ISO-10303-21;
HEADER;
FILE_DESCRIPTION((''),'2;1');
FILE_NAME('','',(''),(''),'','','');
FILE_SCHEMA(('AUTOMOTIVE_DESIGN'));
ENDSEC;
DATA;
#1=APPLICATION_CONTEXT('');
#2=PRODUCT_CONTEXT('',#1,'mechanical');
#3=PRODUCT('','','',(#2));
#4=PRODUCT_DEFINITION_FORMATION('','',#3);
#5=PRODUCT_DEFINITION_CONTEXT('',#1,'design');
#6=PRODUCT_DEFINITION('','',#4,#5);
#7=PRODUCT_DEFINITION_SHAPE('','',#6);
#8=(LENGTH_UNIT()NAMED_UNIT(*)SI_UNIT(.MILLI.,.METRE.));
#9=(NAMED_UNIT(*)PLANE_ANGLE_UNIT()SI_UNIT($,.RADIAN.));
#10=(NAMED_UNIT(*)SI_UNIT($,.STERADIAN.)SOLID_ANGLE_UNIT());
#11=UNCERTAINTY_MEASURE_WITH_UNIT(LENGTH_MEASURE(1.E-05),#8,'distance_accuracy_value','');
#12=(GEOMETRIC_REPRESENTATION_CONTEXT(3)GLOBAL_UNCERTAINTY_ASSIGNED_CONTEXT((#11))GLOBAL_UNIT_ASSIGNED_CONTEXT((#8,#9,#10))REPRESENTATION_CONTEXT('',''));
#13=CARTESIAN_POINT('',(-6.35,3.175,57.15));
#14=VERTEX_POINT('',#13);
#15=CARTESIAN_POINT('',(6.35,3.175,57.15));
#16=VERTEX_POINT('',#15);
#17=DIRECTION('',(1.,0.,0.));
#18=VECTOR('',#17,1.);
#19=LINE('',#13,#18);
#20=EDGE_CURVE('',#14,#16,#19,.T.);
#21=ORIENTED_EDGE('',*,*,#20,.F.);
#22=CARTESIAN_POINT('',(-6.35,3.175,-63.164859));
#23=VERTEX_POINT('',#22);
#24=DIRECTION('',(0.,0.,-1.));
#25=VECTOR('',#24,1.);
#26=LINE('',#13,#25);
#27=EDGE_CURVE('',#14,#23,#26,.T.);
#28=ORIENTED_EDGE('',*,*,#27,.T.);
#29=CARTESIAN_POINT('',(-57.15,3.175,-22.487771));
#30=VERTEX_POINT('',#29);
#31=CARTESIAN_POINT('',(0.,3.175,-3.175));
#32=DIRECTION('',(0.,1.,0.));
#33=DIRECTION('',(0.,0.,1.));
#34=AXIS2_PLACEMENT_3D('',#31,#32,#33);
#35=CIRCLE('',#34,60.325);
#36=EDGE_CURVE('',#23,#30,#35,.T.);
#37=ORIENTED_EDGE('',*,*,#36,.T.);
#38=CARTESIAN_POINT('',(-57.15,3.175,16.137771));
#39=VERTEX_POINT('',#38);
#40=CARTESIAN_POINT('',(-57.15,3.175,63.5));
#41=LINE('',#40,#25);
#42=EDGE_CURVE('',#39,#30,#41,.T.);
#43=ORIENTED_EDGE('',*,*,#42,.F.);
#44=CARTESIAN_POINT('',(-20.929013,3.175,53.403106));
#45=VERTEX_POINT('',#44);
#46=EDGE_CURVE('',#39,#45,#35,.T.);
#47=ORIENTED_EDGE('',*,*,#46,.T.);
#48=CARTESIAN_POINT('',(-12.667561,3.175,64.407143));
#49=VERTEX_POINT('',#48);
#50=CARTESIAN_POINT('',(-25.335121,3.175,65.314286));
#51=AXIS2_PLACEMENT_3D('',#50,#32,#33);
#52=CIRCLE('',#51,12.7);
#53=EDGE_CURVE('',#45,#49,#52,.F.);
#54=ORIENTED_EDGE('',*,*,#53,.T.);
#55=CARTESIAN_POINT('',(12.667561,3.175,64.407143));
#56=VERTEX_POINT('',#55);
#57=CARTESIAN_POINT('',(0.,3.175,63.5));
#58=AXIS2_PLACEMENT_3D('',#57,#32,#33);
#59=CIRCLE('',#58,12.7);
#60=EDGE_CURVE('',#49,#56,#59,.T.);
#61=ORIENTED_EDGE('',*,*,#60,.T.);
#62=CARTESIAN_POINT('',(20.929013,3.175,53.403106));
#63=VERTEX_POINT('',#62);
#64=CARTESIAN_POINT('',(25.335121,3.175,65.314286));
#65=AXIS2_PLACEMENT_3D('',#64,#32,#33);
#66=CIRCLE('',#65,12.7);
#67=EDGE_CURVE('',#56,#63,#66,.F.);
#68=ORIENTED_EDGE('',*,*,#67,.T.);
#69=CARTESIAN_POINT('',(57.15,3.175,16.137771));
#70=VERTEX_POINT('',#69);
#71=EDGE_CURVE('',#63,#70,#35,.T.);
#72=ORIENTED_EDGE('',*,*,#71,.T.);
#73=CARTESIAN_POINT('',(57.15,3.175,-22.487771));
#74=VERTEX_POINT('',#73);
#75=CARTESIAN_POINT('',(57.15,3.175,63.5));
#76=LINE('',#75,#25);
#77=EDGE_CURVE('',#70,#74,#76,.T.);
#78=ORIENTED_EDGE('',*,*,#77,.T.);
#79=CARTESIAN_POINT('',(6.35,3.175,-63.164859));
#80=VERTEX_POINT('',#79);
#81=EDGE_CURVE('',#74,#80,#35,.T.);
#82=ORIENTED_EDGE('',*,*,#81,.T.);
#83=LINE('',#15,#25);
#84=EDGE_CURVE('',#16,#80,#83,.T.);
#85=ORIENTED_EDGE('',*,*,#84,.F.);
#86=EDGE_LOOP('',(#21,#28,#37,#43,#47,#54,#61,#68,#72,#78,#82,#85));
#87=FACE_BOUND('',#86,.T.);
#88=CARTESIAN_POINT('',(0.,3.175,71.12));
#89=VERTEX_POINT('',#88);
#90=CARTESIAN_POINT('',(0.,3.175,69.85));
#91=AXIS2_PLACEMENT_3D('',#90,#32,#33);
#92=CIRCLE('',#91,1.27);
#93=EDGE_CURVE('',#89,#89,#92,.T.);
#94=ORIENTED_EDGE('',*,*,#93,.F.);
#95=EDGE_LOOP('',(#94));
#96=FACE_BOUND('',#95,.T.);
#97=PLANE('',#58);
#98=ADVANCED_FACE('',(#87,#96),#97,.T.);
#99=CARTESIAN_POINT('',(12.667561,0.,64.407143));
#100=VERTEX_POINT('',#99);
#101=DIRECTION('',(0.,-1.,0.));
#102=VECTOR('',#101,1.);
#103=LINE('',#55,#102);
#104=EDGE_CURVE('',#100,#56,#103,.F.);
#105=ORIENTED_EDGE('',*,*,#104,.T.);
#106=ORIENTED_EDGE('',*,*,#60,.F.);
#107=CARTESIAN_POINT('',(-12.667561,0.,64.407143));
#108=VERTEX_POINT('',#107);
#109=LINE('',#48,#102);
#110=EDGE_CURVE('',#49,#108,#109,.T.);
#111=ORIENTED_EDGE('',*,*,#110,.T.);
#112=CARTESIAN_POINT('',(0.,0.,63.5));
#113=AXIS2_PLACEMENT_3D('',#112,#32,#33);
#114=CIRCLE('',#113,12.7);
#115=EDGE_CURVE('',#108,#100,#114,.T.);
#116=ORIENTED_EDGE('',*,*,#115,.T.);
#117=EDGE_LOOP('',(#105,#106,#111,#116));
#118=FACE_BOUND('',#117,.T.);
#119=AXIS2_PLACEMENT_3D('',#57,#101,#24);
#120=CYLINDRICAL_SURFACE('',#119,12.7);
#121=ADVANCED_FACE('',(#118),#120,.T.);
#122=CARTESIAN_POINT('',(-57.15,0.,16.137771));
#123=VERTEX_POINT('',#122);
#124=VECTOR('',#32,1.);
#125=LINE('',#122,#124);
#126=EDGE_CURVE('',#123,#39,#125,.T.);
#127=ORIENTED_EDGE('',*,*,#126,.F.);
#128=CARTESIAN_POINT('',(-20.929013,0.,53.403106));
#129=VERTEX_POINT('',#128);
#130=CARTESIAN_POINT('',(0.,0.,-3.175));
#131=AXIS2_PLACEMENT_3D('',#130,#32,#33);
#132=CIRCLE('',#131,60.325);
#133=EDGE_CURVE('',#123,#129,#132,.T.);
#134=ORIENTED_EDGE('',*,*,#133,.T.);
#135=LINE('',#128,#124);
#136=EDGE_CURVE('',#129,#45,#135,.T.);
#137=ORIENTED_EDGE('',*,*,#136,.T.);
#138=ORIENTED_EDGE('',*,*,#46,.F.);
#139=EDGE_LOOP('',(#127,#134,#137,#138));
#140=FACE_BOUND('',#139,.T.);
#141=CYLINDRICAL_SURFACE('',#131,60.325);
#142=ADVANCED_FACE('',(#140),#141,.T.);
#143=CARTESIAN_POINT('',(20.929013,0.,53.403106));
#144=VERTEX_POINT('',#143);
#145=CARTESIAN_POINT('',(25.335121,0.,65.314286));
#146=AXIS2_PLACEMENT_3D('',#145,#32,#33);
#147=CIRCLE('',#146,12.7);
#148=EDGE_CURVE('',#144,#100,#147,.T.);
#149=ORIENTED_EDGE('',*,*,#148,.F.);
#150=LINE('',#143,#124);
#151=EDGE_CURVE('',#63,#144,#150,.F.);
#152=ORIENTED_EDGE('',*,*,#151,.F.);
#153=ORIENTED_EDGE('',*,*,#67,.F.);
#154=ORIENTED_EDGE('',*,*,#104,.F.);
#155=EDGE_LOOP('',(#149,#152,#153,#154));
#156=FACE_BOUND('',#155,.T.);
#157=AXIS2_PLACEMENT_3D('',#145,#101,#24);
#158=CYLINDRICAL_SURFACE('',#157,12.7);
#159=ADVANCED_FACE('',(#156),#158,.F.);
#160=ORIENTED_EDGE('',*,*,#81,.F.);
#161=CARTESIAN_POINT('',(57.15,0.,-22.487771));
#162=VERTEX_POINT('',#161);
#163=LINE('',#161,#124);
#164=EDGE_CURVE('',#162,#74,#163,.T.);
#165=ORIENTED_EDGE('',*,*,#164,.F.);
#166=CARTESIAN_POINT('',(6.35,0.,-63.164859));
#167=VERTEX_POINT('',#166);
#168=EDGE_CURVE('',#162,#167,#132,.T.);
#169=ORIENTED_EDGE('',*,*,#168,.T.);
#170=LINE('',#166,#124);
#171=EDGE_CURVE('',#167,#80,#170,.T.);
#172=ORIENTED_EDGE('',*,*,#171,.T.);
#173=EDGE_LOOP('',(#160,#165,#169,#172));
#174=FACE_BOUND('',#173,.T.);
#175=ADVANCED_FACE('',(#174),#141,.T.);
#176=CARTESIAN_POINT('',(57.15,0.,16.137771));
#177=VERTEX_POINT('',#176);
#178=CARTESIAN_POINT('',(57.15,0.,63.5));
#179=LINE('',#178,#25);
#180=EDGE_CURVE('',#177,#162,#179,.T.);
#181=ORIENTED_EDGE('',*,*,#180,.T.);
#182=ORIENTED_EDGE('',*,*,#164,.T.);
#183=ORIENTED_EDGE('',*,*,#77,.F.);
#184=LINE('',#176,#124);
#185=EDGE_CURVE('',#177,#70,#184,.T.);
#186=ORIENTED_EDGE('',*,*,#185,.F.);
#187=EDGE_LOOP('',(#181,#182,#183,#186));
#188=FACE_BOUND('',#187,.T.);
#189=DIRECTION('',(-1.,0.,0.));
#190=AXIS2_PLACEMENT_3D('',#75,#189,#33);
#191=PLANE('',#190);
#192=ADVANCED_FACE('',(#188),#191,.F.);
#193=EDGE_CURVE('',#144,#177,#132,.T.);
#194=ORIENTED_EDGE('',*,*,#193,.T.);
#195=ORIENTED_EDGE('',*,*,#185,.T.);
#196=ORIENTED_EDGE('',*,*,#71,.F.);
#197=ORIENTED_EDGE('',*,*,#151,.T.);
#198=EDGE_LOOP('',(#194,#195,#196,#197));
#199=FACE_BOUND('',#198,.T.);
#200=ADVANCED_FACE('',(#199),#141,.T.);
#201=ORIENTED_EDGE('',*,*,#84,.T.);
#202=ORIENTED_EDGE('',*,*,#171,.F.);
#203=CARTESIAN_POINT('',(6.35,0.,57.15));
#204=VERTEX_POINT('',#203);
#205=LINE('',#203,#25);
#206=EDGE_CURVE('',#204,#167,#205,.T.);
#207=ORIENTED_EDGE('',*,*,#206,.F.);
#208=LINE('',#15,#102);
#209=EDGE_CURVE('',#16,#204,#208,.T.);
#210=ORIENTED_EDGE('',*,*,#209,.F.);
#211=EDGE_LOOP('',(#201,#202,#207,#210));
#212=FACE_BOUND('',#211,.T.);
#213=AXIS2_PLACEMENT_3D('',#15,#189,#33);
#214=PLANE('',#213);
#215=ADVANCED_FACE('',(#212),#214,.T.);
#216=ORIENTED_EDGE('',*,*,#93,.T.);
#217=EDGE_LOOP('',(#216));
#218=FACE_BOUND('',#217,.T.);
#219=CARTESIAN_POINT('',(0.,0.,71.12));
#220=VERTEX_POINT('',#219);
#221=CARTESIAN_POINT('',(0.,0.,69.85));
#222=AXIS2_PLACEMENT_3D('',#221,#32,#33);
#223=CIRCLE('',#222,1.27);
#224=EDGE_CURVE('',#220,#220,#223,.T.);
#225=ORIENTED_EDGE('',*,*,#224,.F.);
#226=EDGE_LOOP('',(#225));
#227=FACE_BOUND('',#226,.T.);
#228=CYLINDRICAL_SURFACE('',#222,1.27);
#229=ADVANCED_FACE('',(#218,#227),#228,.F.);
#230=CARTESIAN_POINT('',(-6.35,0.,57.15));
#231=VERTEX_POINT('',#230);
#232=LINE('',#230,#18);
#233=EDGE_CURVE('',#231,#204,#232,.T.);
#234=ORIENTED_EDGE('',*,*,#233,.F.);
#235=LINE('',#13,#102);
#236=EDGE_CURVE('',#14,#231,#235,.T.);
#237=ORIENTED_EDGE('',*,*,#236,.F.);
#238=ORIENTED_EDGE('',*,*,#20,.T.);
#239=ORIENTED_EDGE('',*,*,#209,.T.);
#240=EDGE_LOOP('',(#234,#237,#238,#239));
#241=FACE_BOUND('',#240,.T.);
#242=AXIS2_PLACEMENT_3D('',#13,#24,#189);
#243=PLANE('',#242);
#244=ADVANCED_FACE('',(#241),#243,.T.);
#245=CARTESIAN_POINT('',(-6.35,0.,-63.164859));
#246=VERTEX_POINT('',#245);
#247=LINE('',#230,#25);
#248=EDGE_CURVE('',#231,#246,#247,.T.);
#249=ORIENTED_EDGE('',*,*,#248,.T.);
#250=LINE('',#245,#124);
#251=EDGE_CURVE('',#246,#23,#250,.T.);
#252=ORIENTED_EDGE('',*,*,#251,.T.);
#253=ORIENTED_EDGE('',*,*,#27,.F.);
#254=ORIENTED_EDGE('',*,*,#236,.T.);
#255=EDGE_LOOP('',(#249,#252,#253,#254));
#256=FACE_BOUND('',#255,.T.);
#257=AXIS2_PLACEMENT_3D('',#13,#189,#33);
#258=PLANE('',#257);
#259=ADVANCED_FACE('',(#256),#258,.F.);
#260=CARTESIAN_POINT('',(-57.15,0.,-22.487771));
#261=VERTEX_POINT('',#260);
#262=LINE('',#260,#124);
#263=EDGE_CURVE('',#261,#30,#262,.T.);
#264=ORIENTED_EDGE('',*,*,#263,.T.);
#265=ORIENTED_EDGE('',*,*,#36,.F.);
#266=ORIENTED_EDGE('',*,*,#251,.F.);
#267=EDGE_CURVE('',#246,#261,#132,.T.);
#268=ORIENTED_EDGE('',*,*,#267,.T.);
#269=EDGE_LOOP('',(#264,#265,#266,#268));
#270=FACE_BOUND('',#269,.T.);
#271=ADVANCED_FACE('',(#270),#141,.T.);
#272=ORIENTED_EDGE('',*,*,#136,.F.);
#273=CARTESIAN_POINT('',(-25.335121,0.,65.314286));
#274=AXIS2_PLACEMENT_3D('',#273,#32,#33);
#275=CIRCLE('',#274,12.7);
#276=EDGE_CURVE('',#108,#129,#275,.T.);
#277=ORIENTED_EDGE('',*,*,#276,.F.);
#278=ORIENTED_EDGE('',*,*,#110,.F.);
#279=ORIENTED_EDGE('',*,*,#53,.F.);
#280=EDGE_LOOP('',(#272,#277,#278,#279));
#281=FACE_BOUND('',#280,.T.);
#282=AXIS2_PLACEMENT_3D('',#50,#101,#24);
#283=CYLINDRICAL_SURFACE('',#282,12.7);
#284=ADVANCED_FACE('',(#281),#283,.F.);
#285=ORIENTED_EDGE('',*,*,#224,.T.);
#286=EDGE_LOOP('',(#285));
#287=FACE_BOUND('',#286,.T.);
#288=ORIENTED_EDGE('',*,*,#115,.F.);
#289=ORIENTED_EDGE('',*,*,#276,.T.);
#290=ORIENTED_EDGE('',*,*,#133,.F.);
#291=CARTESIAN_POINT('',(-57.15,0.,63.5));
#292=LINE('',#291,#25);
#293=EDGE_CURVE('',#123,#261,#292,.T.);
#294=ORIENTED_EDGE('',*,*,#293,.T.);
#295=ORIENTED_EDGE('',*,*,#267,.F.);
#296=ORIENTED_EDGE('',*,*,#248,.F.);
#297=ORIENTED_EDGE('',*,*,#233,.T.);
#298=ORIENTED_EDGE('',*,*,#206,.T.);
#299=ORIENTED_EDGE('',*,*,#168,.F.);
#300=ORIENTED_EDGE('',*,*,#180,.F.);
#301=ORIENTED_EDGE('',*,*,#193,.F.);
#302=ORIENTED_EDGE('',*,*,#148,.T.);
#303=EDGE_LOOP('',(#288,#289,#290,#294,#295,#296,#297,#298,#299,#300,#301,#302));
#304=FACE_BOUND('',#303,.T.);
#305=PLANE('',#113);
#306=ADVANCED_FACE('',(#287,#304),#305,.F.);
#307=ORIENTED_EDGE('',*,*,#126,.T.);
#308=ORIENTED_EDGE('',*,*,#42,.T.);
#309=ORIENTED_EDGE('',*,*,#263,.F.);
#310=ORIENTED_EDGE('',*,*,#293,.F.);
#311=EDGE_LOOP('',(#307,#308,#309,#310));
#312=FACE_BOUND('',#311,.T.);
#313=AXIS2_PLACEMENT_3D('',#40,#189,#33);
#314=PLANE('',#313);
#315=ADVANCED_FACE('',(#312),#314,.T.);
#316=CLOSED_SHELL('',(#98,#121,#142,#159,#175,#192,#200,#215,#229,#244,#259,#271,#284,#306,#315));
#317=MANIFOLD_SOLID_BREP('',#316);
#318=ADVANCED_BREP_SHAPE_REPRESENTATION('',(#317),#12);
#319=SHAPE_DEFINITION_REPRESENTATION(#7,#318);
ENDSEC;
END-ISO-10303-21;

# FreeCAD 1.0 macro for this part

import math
import FreeCAD as App
import Part
import Sketcher
from FreeCAD import Vector
Q = App.Units.Quantity


def edges_at(feature, points):
    """Names of the edges that pass closest to the given points."""
    edges = feature.Shape.Edges
    near = lambda p: min(range(len(edges)), key=lambda i: edges[i].distToShape(Part.Vertex(*p))[0])
    return sorted({f"Edge{near(p) + 1}" for p in points})

doc = App.newDocument("Part")
body = doc.addObject("PartDesign::Body", "Body")

# Sketch on XZ plane
sketch1 = body.newObject("Sketcher::SketchObject", "Sketch")
sketch1.AttachmentSupport = (doc.getObject("XZ_Plane"), [""])
sketch1.MapMode = "FlatFace"
sketch1.addGeometry(Part.LineSegment(Vector(57, -64, 0), Vector(6, -64, 0)), False)
sketch1.addGeometry(Part.LineSegment(Vector(6, -64, 0), Vector(6, 57, 0)), False)
sketch1.addGeometry(Part.LineSegment(Vector(6, 57, 0), Vector(-6, 57, 0)), False)
sketch1.addGeometry(Part.LineSegment(Vector(-6, 57, 0), Vector(-6, -64, 0)), False)
sketch1.addGeometry(Part.LineSegment(Vector(-6, -64, 0), Vector(-57, -64, 0)), False)
sketch1.addGeometry(Part.LineSegment(Vector(-57, -64, 0), Vector(-57, 64, 0)), False)
sketch1.addGeometry(Part.LineSegment(Vector(-57, 64, 0), Vector(-13, 64, 0)), False)
sketch1.addGeometry(Part.ArcOfCircle(Part.Circle(Vector(0, 64, 0), Vector(0, 0, 1), 13), math.radians(0), math.radians(180)), False)
sketch1.addGeometry(Part.LineSegment(Vector(13, 64, 0), Vector(57, 64, 0)), False)
sketch1.addGeometry(Part.LineSegment(Vector(57, 64, 0), Vector(57, -64, 0)), False)
sketch1.addConstraint(Sketcher.Constraint("Coincident", 0, 2, 1, 1))
sketch1.addConstraint(Sketcher.Constraint("Coincident", 1, 2, 2, 1))
sketch1.addConstraint(Sketcher.Constraint("Coincident", 2, 2, 3, 1))
sketch1.addConstraint(Sketcher.Constraint("Coincident", 3, 2, 4, 1))
sketch1.addConstraint(Sketcher.Constraint("Coincident", 4, 2, 5, 1))
sketch1.addConstraint(Sketcher.Constraint("Coincident", 5, 2, 6, 1))
sketch1.addConstraint(Sketcher.Constraint("Coincident", 6, 2, 7, 2))
sketch1.addConstraint(Sketcher.Constraint("Coincident", 7, 1, 8, 1))
sketch1.addConstraint(Sketcher.Constraint("Coincident", 8, 2, 9, 1))
sketch1.addConstraint(Sketcher.Constraint("Coincident", 9, 2, 0, 1))
sketch1.addConstraint(Sketcher.Constraint("Horizontal", 0))
sketch1.addConstraint(Sketcher.Constraint("Vertical", 1))
sketch1.addConstraint(Sketcher.Constraint("Horizontal", 2))
sketch1.addConstraint(Sketcher.Constraint("Vertical", 3))
sketch1.addConstraint(Sketcher.Constraint("Horizontal", 4))
sketch1.addConstraint(Sketcher.Constraint("Vertical", 5))
sketch1.addConstraint(Sketcher.Constraint("Horizontal", 6))
sketch1.addConstraint(Sketcher.Constraint("Horizontal", 8))
sketch1.addConstraint(Sketcher.Constraint("Vertical", 9))
sketch1.addConstraint(Sketcher.Constraint("Symmetric", 4, 2, 8, 2, -1, 1))
sketch1.addConstraint(Sketcher.Constraint("Symmetric", 0, 2, 3, 2, -2))
sketch1.addConstraint(Sketcher.Constraint("Symmetric", 6, 2, 7, 1, -2))
sketch1.addConstraint(Sketcher.Constraint("Horizontal", 7, 3, 5, 2))
sketch1.addConstraint(Sketcher.Constraint("Radius", 7, Q("0.5 in")))
sketch1.addConstraint(Sketcher.Constraint("DistanceX", 0, 2, 0, 1, Q("2 in")))
sketch1.addConstraint(Sketcher.Constraint("DistanceY", 5, 1, 5, 2, Q("5 in")))
sketch1.addConstraint(Sketcher.Constraint("DistanceX", 2, 2, 2, 1, Q("0.5 in")))
sketch1.addConstraint(Sketcher.Constraint("DistanceY", 1, 1, 1, 2, Q("4.75 in")))
pad1 = body.newObject("PartDesign::Pad", "Pad")
pad1.Profile = sketch1
pad1.Length = Q("0.125 in")
pad1.Reversed = True

# Sketch on XZ plane
sketch2 = body.newObject("Sketcher::SketchObject", "Sketch001")
sketch2.AttachmentSupport = (doc.getObject("XZ_Plane"), [""])
sketch2.MapMode = "FlatFace"
sketch2.AttachmentOffset = App.Placement(Vector(0, 0, -0.125 * 25.4), App.Rotation())
sketch2.addGeometry(Part.Circle(Vector(0, 69.8, 0), Vector(0, 0, 1), 1.3), False)
sketch2.addConstraint(Sketcher.Constraint("PointOnObject", 0, 3, -2))
sketch2.addConstraint(Sketcher.Constraint("Diameter", 0, Q("0.1 in")))
sketch2.addConstraint(Sketcher.Constraint("DistanceY", -1, 1, 0, 3, Q("2.75 in")))
pocket1 = body.newObject("PartDesign::Pocket", "Pocket")
pocket1.Profile = sketch2
pocket1.Type = "ThroughAll"
pocket1.Reversed = True

# Sketch on XZ plane
sketch3 = body.newObject("Sketcher::SketchObject", "Sketch002")
sketch3.AttachmentSupport = (doc.getObject("XZ_Plane"), [""])
sketch3.MapMode = "FlatFace"
sketch3.AttachmentOffset = App.Placement(Vector(0, 0, -0.125 * 25.4), App.Rotation())
sketch3.addGeometry(Part.LineSegment(Vector(-57.15, 63.5, 0), Vector(-12.7, 63.5, 0)), False)
sketch3.addGeometry(Part.LineSegment(Vector(-12.7, 63.5, 0), Vector(-12.7, 55.8, 0)), False)
sketch3.addGeometry(Part.ArcOfCircle(Part.Circle(Vector(0, -3.17, 0), Vector(0, 0, 1), 60.32), math.radians(102), math.radians(161)), False)
sketch3.addGeometry(Part.LineSegment(Vector(-57.15, 16.14, 0), Vector(-57.15, 63.5, 0)), False)
sketch3.addGeometry(Part.LineSegment(Vector(-57.15, -63.5, 0), Vector(-57.15, -22.49, 0)), False)
sketch3.addGeometry(Part.ArcOfCircle(Part.Circle(Vector(0, -3.17, 0), Vector(0, 0, 1), 60.33), math.radians(-161), math.radians(-96)), False)
sketch3.addGeometry(Part.LineSegment(Vector(-6.35, -63.16, 0), Vector(-6.35, -63.5, 0)), False)
sketch3.addGeometry(Part.LineSegment(Vector(-6.35, -63.5, 0), Vector(-57.15, -63.5, 0)), False)
sketch3.addGeometry(Part.LineSegment(Vector(57.15, 63.5, 0), Vector(57.15, 16.14, 0)), False)
sketch3.addGeometry(Part.ArcOfCircle(Part.Circle(Vector(0, -3.17, 0), Vector(0, 0, 1), 60.32), math.radians(19), math.radians(78)), False)
sketch3.addGeometry(Part.LineSegment(Vector(12.7, 55.8, 0), Vector(12.7, 63.5, 0)), False)
sketch3.addGeometry(Part.LineSegment(Vector(12.7, 63.5, 0), Vector(57.15, 63.5, 0)), False)
sketch3.addGeometry(Part.LineSegment(Vector(57.15, -63.5, 0), Vector(6.35, -63.5, 0)), False)
sketch3.addGeometry(Part.LineSegment(Vector(6.35, -63.5, 0), Vector(6.35, -63.16, 0)), False)
sketch3.addGeometry(Part.ArcOfCircle(Part.Circle(Vector(0, -3.17, 0), Vector(0, 0, 1), 60.33), math.radians(-84), math.radians(-19)), False)
sketch3.addGeometry(Part.LineSegment(Vector(57.15, -22.49, 0), Vector(57.15, -63.5, 0)), False)
sketch3.addConstraint(Sketcher.Constraint("Coincident", 0, 2, 1, 1))
sketch3.addConstraint(Sketcher.Constraint("Coincident", 1, 2, 2, 1))
sketch3.addConstraint(Sketcher.Constraint("Coincident", 2, 2, 3, 1))
sketch3.addConstraint(Sketcher.Constraint("Coincident", 3, 2, 0, 1))
sketch3.addConstraint(Sketcher.Constraint("Coincident", 4, 2, 5, 1))
sketch3.addConstraint(Sketcher.Constraint("Coincident", 5, 2, 6, 1))
sketch3.addConstraint(Sketcher.Constraint("Coincident", 6, 2, 7, 1))
sketch3.addConstraint(Sketcher.Constraint("Coincident", 7, 2, 4, 1))
sketch3.addConstraint(Sketcher.Constraint("Coincident", 8, 2, 9, 1))
sketch3.addConstraint(Sketcher.Constraint("Coincident", 9, 2, 10, 1))
sketch3.addConstraint(Sketcher.Constraint("Coincident", 10, 2, 11, 1))
sketch3.addConstraint(Sketcher.Constraint("Coincident", 11, 2, 8, 1))
sketch3.addConstraint(Sketcher.Constraint("Coincident", 12, 2, 13, 1))
sketch3.addConstraint(Sketcher.Constraint("Coincident", 13, 2, 14, 1))
sketch3.addConstraint(Sketcher.Constraint("Coincident", 14, 2, 15, 1))
sketch3.addConstraint(Sketcher.Constraint("Coincident", 15, 2, 12, 1))
sketch3.addConstraint(Sketcher.Constraint("Horizontal", 0))
sketch3.addConstraint(Sketcher.Constraint("Vertical", 1))
sketch3.addConstraint(Sketcher.Constraint("Vertical", 3))
sketch3.addConstraint(Sketcher.Constraint("Vertical", 4))
sketch3.addConstraint(Sketcher.Constraint("Vertical", 6))
sketch3.addConstraint(Sketcher.Constraint("Horizontal", 7))
sketch3.addConstraint(Sketcher.Constraint("Vertical", 8))
sketch3.addConstraint(Sketcher.Constraint("Vertical", 10))
sketch3.addConstraint(Sketcher.Constraint("Horizontal", 11))
sketch3.addConstraint(Sketcher.Constraint("Horizontal", 12))
sketch3.addConstraint(Sketcher.Constraint("Vertical", 13))
sketch3.addConstraint(Sketcher.Constraint("Vertical", 15))
sketch3.addConstraint(Sketcher.Constraint("Coincident", 5, 3, 2, 3))
sketch3.addConstraint(Sketcher.Constraint("Coincident", 9, 3, 2, 3))
sketch3.addConstraint(Sketcher.Constraint("Coincident", 14, 3, 2, 3))
sketch3.addConstraint(Sketcher.Constraint("Equal", 2, 5))
sketch3.addConstraint(Sketcher.Constraint("Equal", 5, 9))
sketch3.addConstraint(Sketcher.Constraint("Equal", 9, 14))
sketch3.addConstraint(Sketcher.Constraint("Symmetric", 7, 2, 11, 2, -1, 1))
sketch3.addConstraint(Sketcher.Constraint("Symmetric", 3, 2, 15, 2, -1, 1))
sketch3.addConstraint(Sketcher.Constraint("Symmetric", 2, 2, 8, 2, -2))
sketch3.addConstraint(Sketcher.Constraint("Symmetric", 0, 2, 10, 2, -2))
sketch3.addConstraint(Sketcher.Constraint("Horizontal", 5, 2, 13, 2))
sketch3.addConstraint(Sketcher.Constraint("DistanceX", 7, 2, 7, 1, Q("2 in")))
sketch3.addConstraint(Sketcher.Constraint("Radius", 2, Q("2.375 in")))
sketch3.addConstraint(Sketcher.Constraint("DistanceX", 1, 2, 9, 2, Q("1 in")))
sketch3.addConstraint(Sketcher.Constraint("DistanceX", 0, 1, 0, 2, Q("1.75 in")))
sketch3.addConstraint(Sketcher.Constraint("DistanceY", -1, 1, 0, 2, Q("2.5 in")))
sketch3.addConstraint(Sketcher.Constraint("DistanceY", 2, 3, -1, 1, Q("0.125 in")))
pocket2 = body.newObject("PartDesign::Pocket", "Pocket001")
pocket2.Profile = sketch3
pocket2.Type = "ThroughAll"
pocket2.Midplane = True
doc.recompute()

fillet = body.newObject("PartDesign::Fillet", "Fillet")
fillet.Base = (pocket2, edges_at(pocket2, [(12.7, 1.587, 55.798), (-12.7, 1.587, 55.798)]))
fillet.Radius = Q("0.5 in")

doc.recompute()
